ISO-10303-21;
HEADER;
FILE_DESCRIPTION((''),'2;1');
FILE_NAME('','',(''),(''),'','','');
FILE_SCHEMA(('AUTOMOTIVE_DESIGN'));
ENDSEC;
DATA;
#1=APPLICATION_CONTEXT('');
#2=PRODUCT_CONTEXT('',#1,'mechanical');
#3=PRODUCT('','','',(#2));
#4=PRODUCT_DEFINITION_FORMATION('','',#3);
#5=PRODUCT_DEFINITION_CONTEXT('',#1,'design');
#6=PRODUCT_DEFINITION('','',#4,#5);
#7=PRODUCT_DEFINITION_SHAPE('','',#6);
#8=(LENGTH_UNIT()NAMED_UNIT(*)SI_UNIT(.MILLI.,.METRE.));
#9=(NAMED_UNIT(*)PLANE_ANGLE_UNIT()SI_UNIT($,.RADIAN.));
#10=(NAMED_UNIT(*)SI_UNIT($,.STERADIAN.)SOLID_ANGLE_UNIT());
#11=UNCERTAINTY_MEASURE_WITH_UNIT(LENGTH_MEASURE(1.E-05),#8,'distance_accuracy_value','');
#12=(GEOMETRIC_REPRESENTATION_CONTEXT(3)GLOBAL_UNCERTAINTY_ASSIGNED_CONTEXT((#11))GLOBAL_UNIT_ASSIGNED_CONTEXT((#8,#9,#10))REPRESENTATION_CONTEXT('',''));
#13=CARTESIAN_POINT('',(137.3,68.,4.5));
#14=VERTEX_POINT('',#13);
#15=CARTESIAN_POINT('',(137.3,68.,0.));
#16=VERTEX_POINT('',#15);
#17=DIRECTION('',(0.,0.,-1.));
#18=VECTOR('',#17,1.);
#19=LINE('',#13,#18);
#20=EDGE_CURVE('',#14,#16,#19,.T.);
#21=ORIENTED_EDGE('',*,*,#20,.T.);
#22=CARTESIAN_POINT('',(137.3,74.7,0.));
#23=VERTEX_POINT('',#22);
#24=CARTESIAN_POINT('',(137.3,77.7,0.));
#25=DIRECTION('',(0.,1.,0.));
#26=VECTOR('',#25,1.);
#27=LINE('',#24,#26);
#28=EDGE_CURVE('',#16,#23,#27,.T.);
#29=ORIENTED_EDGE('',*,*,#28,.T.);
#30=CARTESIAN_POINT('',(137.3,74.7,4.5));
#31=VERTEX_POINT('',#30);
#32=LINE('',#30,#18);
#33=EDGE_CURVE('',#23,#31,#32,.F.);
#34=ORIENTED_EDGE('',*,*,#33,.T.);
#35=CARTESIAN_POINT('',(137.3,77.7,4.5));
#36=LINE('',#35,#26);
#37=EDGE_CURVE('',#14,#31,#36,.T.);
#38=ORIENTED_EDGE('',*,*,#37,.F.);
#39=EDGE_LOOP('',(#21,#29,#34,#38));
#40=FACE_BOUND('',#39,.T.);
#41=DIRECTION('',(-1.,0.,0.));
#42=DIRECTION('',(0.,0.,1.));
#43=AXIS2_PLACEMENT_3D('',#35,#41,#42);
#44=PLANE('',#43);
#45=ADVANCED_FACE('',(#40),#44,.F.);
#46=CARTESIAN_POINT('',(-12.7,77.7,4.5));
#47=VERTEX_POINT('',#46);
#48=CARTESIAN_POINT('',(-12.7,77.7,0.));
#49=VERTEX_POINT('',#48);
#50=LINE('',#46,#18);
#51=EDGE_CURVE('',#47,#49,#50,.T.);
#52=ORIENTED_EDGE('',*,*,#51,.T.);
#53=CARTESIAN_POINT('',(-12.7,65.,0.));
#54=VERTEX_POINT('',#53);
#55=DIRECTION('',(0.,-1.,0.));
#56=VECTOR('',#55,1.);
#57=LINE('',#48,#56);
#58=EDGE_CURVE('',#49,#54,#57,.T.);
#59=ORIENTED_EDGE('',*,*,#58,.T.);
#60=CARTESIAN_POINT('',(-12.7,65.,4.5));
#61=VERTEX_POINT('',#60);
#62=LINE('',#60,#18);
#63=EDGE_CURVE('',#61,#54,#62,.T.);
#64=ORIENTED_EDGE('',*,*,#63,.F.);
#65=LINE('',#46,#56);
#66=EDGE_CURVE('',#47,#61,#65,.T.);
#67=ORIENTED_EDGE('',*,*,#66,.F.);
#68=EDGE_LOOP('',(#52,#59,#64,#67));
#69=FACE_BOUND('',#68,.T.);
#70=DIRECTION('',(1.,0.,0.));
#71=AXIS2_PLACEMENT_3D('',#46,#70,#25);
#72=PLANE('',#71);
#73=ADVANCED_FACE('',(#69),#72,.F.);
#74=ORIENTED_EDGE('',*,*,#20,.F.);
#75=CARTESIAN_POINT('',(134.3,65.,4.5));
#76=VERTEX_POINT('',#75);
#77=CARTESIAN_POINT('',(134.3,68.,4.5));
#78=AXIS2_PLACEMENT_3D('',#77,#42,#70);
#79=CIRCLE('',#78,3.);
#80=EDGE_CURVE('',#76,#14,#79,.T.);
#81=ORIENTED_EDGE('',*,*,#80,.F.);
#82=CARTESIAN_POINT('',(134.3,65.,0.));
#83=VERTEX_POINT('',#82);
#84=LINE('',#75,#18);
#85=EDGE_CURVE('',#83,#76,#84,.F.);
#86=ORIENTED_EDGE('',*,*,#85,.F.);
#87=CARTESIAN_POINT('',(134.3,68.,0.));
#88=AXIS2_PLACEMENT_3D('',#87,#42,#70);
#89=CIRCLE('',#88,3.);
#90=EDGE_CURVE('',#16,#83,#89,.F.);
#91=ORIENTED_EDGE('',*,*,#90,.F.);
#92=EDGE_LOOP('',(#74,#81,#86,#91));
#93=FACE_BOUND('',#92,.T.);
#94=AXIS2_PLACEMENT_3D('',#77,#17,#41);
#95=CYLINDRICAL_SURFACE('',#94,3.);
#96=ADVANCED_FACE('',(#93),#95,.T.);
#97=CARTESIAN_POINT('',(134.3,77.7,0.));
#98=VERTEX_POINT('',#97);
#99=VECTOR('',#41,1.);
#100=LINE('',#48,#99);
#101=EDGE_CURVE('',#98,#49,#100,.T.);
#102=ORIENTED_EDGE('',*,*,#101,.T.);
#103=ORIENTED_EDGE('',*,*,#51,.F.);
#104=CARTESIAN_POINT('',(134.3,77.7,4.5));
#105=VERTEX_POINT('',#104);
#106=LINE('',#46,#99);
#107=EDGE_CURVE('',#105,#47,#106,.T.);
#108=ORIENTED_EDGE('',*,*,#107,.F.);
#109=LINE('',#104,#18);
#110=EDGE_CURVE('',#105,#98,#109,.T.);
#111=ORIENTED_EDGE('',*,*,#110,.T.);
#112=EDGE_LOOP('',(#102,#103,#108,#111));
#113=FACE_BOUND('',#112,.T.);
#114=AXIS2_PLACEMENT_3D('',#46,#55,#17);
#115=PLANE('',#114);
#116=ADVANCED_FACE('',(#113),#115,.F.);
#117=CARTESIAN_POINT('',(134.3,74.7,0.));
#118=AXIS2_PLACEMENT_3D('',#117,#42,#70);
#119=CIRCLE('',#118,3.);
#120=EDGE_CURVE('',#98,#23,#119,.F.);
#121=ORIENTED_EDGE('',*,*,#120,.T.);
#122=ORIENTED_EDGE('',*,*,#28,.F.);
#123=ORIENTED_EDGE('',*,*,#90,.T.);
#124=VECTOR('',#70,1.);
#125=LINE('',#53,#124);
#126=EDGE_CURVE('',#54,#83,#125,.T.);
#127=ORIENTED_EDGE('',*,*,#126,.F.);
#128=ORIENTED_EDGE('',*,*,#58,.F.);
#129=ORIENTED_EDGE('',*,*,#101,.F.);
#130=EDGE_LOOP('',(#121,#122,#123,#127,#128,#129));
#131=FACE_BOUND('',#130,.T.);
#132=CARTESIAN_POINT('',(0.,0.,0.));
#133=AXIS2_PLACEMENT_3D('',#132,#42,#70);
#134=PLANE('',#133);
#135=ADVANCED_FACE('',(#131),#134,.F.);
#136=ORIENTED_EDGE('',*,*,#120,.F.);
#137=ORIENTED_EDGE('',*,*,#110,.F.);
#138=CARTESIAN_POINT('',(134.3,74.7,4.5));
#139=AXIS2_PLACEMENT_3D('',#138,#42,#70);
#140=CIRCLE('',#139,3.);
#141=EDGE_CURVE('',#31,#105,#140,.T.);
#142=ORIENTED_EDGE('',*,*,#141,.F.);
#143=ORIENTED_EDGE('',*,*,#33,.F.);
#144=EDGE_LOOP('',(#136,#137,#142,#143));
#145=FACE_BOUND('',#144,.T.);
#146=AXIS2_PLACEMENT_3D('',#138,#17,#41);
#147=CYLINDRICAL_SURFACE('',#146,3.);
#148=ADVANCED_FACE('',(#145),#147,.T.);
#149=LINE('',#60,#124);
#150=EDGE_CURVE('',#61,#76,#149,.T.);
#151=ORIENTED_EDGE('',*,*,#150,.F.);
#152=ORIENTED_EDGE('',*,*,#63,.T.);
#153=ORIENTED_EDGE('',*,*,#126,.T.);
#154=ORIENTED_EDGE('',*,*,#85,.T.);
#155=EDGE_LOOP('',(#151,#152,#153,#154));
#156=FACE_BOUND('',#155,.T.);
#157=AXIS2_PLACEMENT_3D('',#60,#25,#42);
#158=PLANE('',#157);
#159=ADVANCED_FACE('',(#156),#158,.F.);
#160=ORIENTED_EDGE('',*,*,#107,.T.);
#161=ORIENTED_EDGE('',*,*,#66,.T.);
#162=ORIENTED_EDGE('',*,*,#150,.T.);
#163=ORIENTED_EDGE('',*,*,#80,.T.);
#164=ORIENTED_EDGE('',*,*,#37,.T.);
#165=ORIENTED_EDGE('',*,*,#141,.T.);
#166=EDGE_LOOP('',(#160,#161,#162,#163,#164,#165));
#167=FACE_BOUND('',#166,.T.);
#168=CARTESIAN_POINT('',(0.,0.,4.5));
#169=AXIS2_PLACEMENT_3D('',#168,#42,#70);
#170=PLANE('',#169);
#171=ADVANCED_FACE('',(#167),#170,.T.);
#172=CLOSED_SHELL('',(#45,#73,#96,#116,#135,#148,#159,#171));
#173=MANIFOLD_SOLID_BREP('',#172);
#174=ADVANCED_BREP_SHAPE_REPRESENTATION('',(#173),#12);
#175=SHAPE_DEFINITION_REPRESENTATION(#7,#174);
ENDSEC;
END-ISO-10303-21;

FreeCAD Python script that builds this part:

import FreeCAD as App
import Part
import Sketcher
Q = App.Units.Quantity


def edges_at(feature, points):
    """Names of the edges that pass closest to the given points."""
    edges = feature.Shape.Edges
    near = lambda p: min(range(len(edges)), key=lambda i: edges[i].distToShape(Part.Vertex(*p))[0])
    return sorted({f"Edge{near(p) + 1}" for p in points})

doc = App.newDocument("Part")
body = doc.addObject("PartDesign::Body", "Body")

# Sketch on XY plane
sketch1 = body.newObject("Sketcher::SketchObject", "Sketch")
sketch1.AttachmentSupport = (doc.getObject("XY_Plane"), [""])
sketch1.MapMode = "FlatFace"
sketch1.addGeometry([
    Part.LineSegment(App.Vector(-13, 78, 0), App.Vector(-13, 65, 0)),
    Part.LineSegment(App.Vector(-13, 65, 0), App.Vector(137, 65, 0)),
    Part.LineSegment(App.Vector(137, 65, 0), App.Vector(137, 78, 0)),
    Part.LineSegment(App.Vector(137, 78, 0), App.Vector(-13, 78, 0)),
], False)
sketch1.addConstraint([
    Sketcher.Constraint("Coincident", 0, 2, 1, 1),
    Sketcher.Constraint("Coincident", 1, 2, 2, 1),
    Sketcher.Constraint("Coincident", 2, 2, 3, 1),
    Sketcher.Constraint("Coincident", 3, 2, 0, 1),
    Sketcher.Constraint("Vertical", 0),
    Sketcher.Constraint("Horizontal", 1),
    Sketcher.Constraint("Vertical", 2),
    Sketcher.Constraint("Horizontal", 3),
    Sketcher.Constraint("DistanceX", 1, 1, 1, 2, Q("150 mm")),
    Sketcher.Constraint("DistanceY", 0, 2, 0, 1, Q("12.7 mm")),
    Sketcher.Constraint("DistanceY", -1, 1, 0, 2, Q("65 mm")),
    Sketcher.Constraint("DistanceX", 0, 2, -1, 1, Q("12.7 mm")),
])
pad1 = body.newObject("PartDesign::Pad", "Pad")
pad1.Profile = sketch1
pad1.Length = 4.5
doc.recompute()

fillet = body.newObject("PartDesign::Fillet", "Fillet")
fillet.Base = (pad1, edges_at(pad1, [(137.3, 77.7, 2.25), (137.3, 65, 2.25)]))
fillet.Radius = 3

doc.recompute()
